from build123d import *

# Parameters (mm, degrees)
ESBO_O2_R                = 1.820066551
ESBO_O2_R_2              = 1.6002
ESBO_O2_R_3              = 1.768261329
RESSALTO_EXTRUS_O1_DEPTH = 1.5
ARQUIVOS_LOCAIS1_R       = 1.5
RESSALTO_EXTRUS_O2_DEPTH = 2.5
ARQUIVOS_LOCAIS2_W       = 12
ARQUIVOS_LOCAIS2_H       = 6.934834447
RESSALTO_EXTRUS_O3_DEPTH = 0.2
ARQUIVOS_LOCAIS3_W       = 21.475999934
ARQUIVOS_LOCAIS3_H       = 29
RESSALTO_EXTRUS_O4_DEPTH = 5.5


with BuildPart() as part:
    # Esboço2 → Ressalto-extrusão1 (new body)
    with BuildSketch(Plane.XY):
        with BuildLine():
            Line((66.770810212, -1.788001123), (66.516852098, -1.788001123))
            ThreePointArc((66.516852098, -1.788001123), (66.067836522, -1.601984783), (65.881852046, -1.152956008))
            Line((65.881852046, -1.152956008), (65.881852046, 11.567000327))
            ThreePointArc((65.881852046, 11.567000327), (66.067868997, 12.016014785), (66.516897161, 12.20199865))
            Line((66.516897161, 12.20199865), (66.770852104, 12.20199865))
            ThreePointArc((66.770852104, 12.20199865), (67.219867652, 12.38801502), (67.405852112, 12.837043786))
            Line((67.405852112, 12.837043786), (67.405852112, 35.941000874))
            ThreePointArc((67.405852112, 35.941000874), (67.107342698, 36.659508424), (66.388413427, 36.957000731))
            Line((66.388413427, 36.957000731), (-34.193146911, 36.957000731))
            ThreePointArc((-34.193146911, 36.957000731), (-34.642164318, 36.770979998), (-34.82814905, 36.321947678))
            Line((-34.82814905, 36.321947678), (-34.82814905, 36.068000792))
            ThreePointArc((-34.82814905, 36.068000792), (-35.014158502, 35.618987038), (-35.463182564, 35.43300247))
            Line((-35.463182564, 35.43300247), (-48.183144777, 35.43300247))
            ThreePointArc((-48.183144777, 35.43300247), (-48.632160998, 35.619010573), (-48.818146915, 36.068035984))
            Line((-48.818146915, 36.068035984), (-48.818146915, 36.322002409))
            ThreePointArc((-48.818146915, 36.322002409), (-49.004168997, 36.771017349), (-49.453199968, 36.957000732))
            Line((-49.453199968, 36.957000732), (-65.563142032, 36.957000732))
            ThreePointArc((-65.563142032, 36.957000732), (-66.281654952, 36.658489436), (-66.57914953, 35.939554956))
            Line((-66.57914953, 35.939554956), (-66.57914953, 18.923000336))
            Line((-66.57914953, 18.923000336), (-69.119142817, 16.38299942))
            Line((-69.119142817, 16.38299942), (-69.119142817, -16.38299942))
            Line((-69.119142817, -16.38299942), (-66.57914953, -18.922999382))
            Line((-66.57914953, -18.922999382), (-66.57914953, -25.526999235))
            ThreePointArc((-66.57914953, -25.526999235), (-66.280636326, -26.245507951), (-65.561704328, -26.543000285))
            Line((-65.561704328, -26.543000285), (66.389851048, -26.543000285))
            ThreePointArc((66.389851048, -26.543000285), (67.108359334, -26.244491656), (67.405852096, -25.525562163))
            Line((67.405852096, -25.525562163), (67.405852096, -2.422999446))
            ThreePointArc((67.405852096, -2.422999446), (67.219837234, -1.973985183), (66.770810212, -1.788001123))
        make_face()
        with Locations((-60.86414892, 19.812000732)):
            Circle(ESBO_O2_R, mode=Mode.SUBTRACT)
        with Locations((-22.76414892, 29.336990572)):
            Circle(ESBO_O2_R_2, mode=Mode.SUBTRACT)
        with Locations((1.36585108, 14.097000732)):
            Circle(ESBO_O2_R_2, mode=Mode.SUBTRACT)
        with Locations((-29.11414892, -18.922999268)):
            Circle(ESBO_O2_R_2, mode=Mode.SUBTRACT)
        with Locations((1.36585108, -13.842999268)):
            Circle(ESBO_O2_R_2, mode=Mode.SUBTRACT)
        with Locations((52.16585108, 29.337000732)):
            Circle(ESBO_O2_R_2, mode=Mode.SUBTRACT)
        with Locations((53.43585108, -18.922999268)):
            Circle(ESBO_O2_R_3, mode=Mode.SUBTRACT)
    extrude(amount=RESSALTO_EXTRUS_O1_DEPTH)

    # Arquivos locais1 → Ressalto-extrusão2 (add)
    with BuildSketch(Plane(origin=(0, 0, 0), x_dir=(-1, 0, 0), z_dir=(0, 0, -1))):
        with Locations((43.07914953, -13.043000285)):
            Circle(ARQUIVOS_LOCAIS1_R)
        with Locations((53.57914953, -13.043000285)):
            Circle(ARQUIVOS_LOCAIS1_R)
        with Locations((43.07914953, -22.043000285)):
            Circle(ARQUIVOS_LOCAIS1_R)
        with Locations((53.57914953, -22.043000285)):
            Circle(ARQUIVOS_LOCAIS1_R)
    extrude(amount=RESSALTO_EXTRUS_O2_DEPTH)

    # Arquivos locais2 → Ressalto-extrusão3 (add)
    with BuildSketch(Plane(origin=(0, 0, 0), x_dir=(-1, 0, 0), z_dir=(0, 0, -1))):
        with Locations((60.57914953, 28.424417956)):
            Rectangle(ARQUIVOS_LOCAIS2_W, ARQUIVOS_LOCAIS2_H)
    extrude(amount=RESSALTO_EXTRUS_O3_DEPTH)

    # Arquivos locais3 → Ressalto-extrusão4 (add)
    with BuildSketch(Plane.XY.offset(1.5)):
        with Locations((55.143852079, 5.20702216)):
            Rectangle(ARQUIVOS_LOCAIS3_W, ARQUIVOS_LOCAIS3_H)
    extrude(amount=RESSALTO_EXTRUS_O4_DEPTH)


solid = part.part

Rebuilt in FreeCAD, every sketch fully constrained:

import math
import FreeCAD as App
import Part
import Sketcher

V = App.Vector

doc = App.newDocument("Part")
body = doc.addObject("PartDesign::Body", "Body")

sketch1 = doc.addObject("Sketcher::SketchObject", "Sketch")
body.addObject(sketch1)
sketch1.AttachmentSupport = (doc.XY_Plane, [""])
sketch1.MapMode = "FlatFace"
sketch1.addGeometry([
    Part.LineSegment(V(66.77, -1.79, 0), V(66.52, -1.79, 0)),
    Part.ArcOfCircle(Part.Circle(V(66.52, -1.15, 0), V(0, 0, 1), 0.64), math.radians(-180), math.radians(-90)),
    Part.LineSegment(V(65.88, -1.15, 0), V(65.88, 11.57, 0)),
    Part.ArcOfCircle(Part.Circle(V(66.52, 11.57, 0), V(0, 0, 1), 0.64), math.radians(90), math.radians(180)),
    Part.LineSegment(V(66.52, 12.2, 0), V(66.77, 12.2, 0)),
    Part.ArcOfCircle(Part.Circle(V(66.77, 12.84, 0), V(0, 0, 1), 0.64), math.radians(-90), math.radians(0)),
    Part.LineSegment(V(67.41, 12.84, 0), V(67.41, 35.94, 0)),
    Part.ArcOfCircle(Part.Circle(V(66.39, 35.94, 0), V(0, 0, 1), 1.02), math.radians(0), math.radians(90)),
    Part.LineSegment(V(66.39, 36.96, 0), V(-34.19, 36.96, 0)),
    Part.ArcOfCircle(Part.Circle(V(-34.19, 36.32, 0), V(0, 0, 1), 0.64), math.radians(90), math.radians(180)),
    Part.LineSegment(V(-34.83, 36.32, 0), V(-34.83, 36.07, 0)),
    Part.ArcOfCircle(Part.Circle(V(-35.46, 36.07, 0), V(0, 0, 1), 0.64), math.radians(-90), math.radians(0)),
    Part.LineSegment(V(-35.46, 35.43, 0), V(-48.18, 35.43, 0)),
    Part.ArcOfCircle(Part.Circle(V(-48.18, 36.07, 0), V(0, 0, 1), 0.64), math.radians(180), math.radians(270)),
    Part.LineSegment(V(-48.82, 36.07, 0), V(-48.82, 36.32, 0)),
    Part.ArcOfCircle(Part.Circle(V(-49.45, 36.32, 0), V(0, 0, 1), 0.64), math.radians(0), math.radians(90)),
    Part.LineSegment(V(-49.45, 36.96, 0), V(-65.56, 36.96, 0)),
    Part.ArcOfCircle(Part.Circle(V(-65.56, 35.94, 0), V(0, 0, 1), 1.02), math.radians(90), math.radians(180)),
    Part.LineSegment(V(-66.58, 35.94, 0), V(-66.58, 18.92, 0)),
    Part.LineSegment(V(-66.58, 18.92, 0), V(-69.12, 16.38, 0)),
    Part.LineSegment(V(-69.12, 16.38, 0), V(-69.12, -16.38, 0)),
    Part.LineSegment(V(-69.12, -16.38, 0), V(-66.58, -18.92, 0)),
    Part.LineSegment(V(-66.58, -18.92, 0), V(-66.58, -25.53, 0)),
    Part.ArcOfCircle(Part.Circle(V(-65.56, -25.53, 0), V(0, 0, 1), 1.02), math.radians(-180), math.radians(-90)),
    Part.LineSegment(V(-65.56, -26.54, 0), V(66.39, -26.54, 0)),
    Part.ArcOfCircle(Part.Circle(V(66.39, -25.53, 0), V(0, 0, 1), 1.02), math.radians(-90), math.radians(0)),
    Part.LineSegment(V(67.41, -25.53, 0), V(67.41, -2.42, 0)),
    Part.ArcOfCircle(Part.Circle(V(66.77, -2.42, 0), V(0, 0, 1), 0.64), math.radians(0), math.radians(90)),
    Part.Circle(V(-29.11, -18.92, 0), V(0, 0, 1), 1.6),
    Part.Circle(V(1.37, -13.84, 0), V(0, 0, 1), 1.6),
    Part.Circle(V(53.44, -18.92, 0), V(0, 0, 1), 1.77),
    Part.Circle(V(-60.86, 19.81, 0), V(0, 0, 1), 1.82),
    Part.Circle(V(-22.76, 29.34, 0), V(0, 0, 1), 1.6),
    Part.Circle(V(1.37, 14.1, 0), V(0, 0, 1), 1.6),
    Part.Circle(V(52.17, 29.34, 0), V(0, 0, 1), 1.6),
], False)
sketch1.addConstraint([
    Sketcher.Constraint("Coincident", 0, 2, 1, 2),
    Sketcher.Constraint("Tangent", 1, 1, 2, 1),
    Sketcher.Constraint("Coincident", 2, 2, 3, 2),
    Sketcher.Constraint("Tangent", 3, 1, 4, 1),
    Sketcher.Constraint("Coincident", 4, 2, 5, 1),
    Sketcher.Constraint("Tangent", 5, 2, 6, 1),
    Sketcher.Constraint("Coincident", 6, 2, 7, 1),
    Sketcher.Constraint("Tangent", 7, 2, 8, 1),
    Sketcher.Constraint("Coincident", 8, 2, 9, 1),
    Sketcher.Constraint("Tangent", 9, 2, 10, 1),
    Sketcher.Constraint("Coincident", 10, 2, 11, 2),
    Sketcher.Constraint("Tangent", 11, 1, 12, 1),
    Sketcher.Constraint("Coincident", 12, 2, 13, 2),
    Sketcher.Constraint("Tangent", 13, 1, 14, 1),
    Sketcher.Constraint("Coincident", 14, 2, 15, 1),
    Sketcher.Constraint("Tangent", 15, 2, 16, 1),
    Sketcher.Constraint("Coincident", 16, 2, 17, 1),
    Sketcher.Constraint("Tangent", 17, 2, 18, 1),
    Sketcher.Constraint("Coincident", 18, 2, 19, 1),
    Sketcher.Constraint("Coincident", 19, 2, 20, 1),
    Sketcher.Constraint("Coincident", 20, 2, 21, 1),
    Sketcher.Constraint("Coincident", 21, 2, 22, 1),
    Sketcher.Constraint("Coincident", 22, 2, 23, 1),
    Sketcher.Constraint("Tangent", 23, 2, 24, 1),
    Sketcher.Constraint("Coincident", 24, 2, 25, 1),
    Sketcher.Constraint("Tangent", 25, 2, 26, 1),
    Sketcher.Constraint("Coincident", 26, 2, 27, 1),
    Sketcher.Constraint("Tangent", 27, 2, 0, 1),
    Sketcher.Constraint("Horizontal", 0),
    Sketcher.Constraint("Vertical", 2),
    Sketcher.Constraint("Horizontal", 4),
    Sketcher.Constraint("Vertical", 6),
    Sketcher.Constraint("Horizontal", 8),
    Sketcher.Constraint("Vertical", 10),
    Sketcher.Constraint("Horizontal", 12),
    Sketcher.Constraint("Vertical", 14),
    Sketcher.Constraint("Horizontal", 16),
    Sketcher.Constraint("Vertical", 18),
    Sketcher.Constraint("Vertical", 20),
    Sketcher.Constraint("Vertical", 22),
    Sketcher.Constraint("Horizontal", 24),
    Sketcher.Constraint("Vertical", 26),
    Sketcher.Constraint("Equal", 1, 3),
    Sketcher.Constraint("Equal", 3, 5),
    Sketcher.Constraint("Equal", 11, 13),
    Sketcher.Constraint("Equal", 9, 15),
    Sketcher.Constraint("Equal", 17, 23),
    Sketcher.Constraint("Equal", 7, 25),
    Sketcher.Constraint("Equal", 28, 29),
    Sketcher.Constraint("Equal", 29, 32),
    Sketcher.Constraint("Equal", 32, 33),
    Sketcher.Constraint("Equal", 33, 34),
    Sketcher.Constraint("Symmetric", 18, 2, 21, 2, -1),
    Sketcher.Constraint("Horizontal", 9, 3, 15, 3),
    Sketcher.Constraint("Horizontal", 28, 3, 30, 3),
    Sketcher.Constraint("Horizontal", 30, 3, 21, 2),
    Sketcher.Constraint("Vertical", 7, 3, 25, 3),
    Sketcher.Constraint("Vertical", 29, 3, 33, 3),
    Sketcher.Constraint("Equal", 19, 21),
    Sketcher.Constraint("Diameter", 28, 3.2004),
    Sketcher.Constraint("DistanceX", 31, 3, 32, 3, 38.1),
    Sketcher.Constraint("DistanceY", 20, 2, 20, 1, 32.765999),
    Sketcher.Constraint("DistanceY", 22, 2, 22, 1, 6.604),
    Sketcher.Constraint("Radius", 7, 1.01744),
    Sketcher.Constraint("Radius", 27, 0.635042),
    Sketcher.Constraint("DistanceY", 1, 3, 5, 3, 13.99),
    Sketcher.Constraint("DistanceX", 28, 3, 29, 3, 30.48),
    Sketcher.Constraint("DistanceY", 28, 3, 29, 3, 5.08),
    Sketcher.Constraint("DistanceY", 29, 3, 33, 3, 27.94),
    Sketcher.Constraint("DistanceX", 32, 3, 33, 3, 24.13),
    Sketcher.Constraint("DistanceX", 34, 3, 6, 2, 15.240001),
    Sketcher.Constraint("DistanceY", 34, 3, 7, 2, 7.62),
    Sketcher.Constraint("DistanceY", 19, 2, 18, 2, 2.540001),
    Sketcher.Constraint("DistanceY", 23, 2, 21, 2, 7.620001),
    Sketcher.Constraint("DistanceX", 30, 3, 25, 2, 13.970001),
    Sketcher.Constraint("Diameter", 30, 3.536523),
    Sketcher.Constraint("Diameter", 31, 3.640133),
    Sketcher.Constraint("DistanceY", -1, 1, 31, 3, 19.812001),
    Sketcher.Constraint("DistanceY", -1, 1, 34, 3, 29.337001),
    Sketcher.Constraint("DistanceY", 0, 2, -1, 1, 1.788001),
    Sketcher.Constraint("DistanceY", -1, 1, 2, 2, 11.567),
    Sketcher.Constraint("DistanceY", -1, 1, 6, 2, 35.941001),
    Sketcher.Constraint("DistanceY", -1, 1, 10, 2, 36.068001),
    Sketcher.Constraint("DistanceY", 26, 2, -1, 1, 2.422999),
    Sketcher.Constraint("Radius", 1, 0.635045),
    Sketcher.Constraint("Radius", 9, 0.635053),
    Sketcher.Constraint("Radius", 11, 0.635034),
    Sketcher.Constraint("Radius", 17, 1.017447),
    Sketcher.Constraint("DistanceX", 30, 3, 0, 2, 13.081001),
    Sketcher.Constraint("DistanceX", 1, 1, 0, 2, 0.635),
    Sketcher.Constraint("DistanceX", 2, 2, 4, 2, 0.889),
    Sketcher.Constraint("DistanceX", 9, 2, 32, 3, 12.064),
    Sketcher.Constraint("DistanceY", 11, 1, 10, 2, 0.634998),
    Sketcher.Constraint("DistanceY", 12, 2, 14, 2, 0.889),
    Sketcher.Constraint("DistanceX", 17, 2, 31, 3, 5.715001),
    Sketcher.Constraint("DistanceX", 19, 2, 16, 2, 3.556001),
    Sketcher.Constraint("DistanceX", 30, 3, 24, 2, 12.954),
    Sketcher.Constraint("Distance", 19, 3.592098),
    Sketcher.Constraint("DistanceX", 8, 2, 8, 1, 100.58156),
    Sketcher.Constraint("DistanceX", 15, 3, -1, 1, 49.4532),
    Sketcher.Constraint("DistanceX", 12, 2, 12, 1, 12.719962),
    Sketcher.Constraint("DistanceX", 16, 2, 16, 1, 16.109942),
    Sketcher.Constraint("DistanceX", 24, 1, 24, 2, 131.951555),
    Sketcher.Constraint("DistanceY", -1, 1, 32, 3, 29.336991),
])
pad1 = doc.addObject("PartDesign::Pad", "Pad")
body.addObject(pad1)
pad1.Profile = sketch1
pad1.Length = 1.5

sketch2 = doc.addObject("Sketcher::SketchObject", "Sketch001")
body.addObject(sketch2)
sketch2.AttachmentSupport = (doc.XY_Plane, [""])
sketch2.MapMode = "FlatFace"
sketch2.addGeometry([
    Part.Circle(V(-43.1, -13, 0), V(0, 0, 1), 1.5),
    Part.Circle(V(-53.6, -13, 0), V(0, 0, 1), 1.5),
    Part.Circle(V(-43.1, -22, 0), V(0, 0, 1), 1.5),
    Part.Circle(V(-53.6, -22, 0), V(0, 0, 1), 1.5),
], False)
sketch2.addConstraint([
    Sketcher.Constraint("Equal", 0, 1),
    Sketcher.Constraint("Equal", 1, 2),
    Sketcher.Constraint("Equal", 2, 3),
    Sketcher.Constraint("Horizontal", 0, 3, 1, 3),
    Sketcher.Constraint("Horizontal", 2, 3, 3, 3),
    Sketcher.Constraint("Vertical", 0, 3, 2, 3),
    Sketcher.Constraint("Vertical", 1, 3, 3, 3),
    Sketcher.Constraint("Diameter", 0, 3.0),
    Sketcher.Constraint("DistanceY", 2, 3, 0, 3, 9.0),
    Sketcher.Constraint("DistanceX", 1, 3, 0, 3, 10.5),
    Sketcher.Constraint("DistanceY", 0, 3, -1, 1, 13.043),
    Sketcher.Constraint("DistanceX", 0, 3, -1, 1, 43.07915),
])
pad2 = doc.addObject("PartDesign::Pad", "Pad001")
body.addObject(pad2)
pad2.Profile = sketch2
pad2.Length = 2.5
pad2.Reversed = True

sketch3 = doc.addObject("Sketcher::SketchObject", "Sketch002")
body.addObject(sketch3)
sketch3.AttachmentSupport = (doc.XY_Plane, [""])
sketch3.MapMode = "FlatFace"
sketch3.addGeometry([
    Part.LineSegment(V(-55, 32, 0), V(-55, 25, 0)),
    Part.LineSegment(V(-55, 25, 0), V(-67, 25, 0)),
    Part.LineSegment(V(-67, 25, 0), V(-67, 32, 0)),
    Part.LineSegment(V(-67, 32, 0), V(-55, 32, 0)),
], False)
sketch3.addConstraint([
    Sketcher.Constraint("Coincident", 0, 2, 1, 1),
    Sketcher.Constraint("Coincident", 1, 2, 2, 1),
    Sketcher.Constraint("Coincident", 2, 2, 3, 1),
    Sketcher.Constraint("Coincident", 3, 2, 0, 1),
    Sketcher.Constraint("Vertical", 0),
    Sketcher.Constraint("Horizontal", 1),
    Sketcher.Constraint("Vertical", 2),
    Sketcher.Constraint("Horizontal", 3),
    Sketcher.Constraint("DistanceX", 1, 2, 1, 1, 12.0),
    Sketcher.Constraint("DistanceY", -1, 1, 0, 2, 24.957001),
    Sketcher.Constraint("DistanceY", 0, 2, 0, 1, 6.934834),
    Sketcher.Constraint("DistanceX", 0, 2, -1, 1, 54.57915),
])
pad3 = doc.addObject("PartDesign::Pad", "Pad002")
body.addObject(pad3)
pad3.Profile = sketch3
pad3.Length = 0.2
pad3.Reversed = True

sketch4 = doc.addObject("Sketcher::SketchObject", "Sketch003")
body.addObject(sketch4)
sketch4.AttachmentSupport = (doc.XY_Plane, [""])
sketch4.MapMode = "FlatFace"
sketch4.AttachmentOffset = App.Placement(V(0, 0, 1.5), App.Rotation())
sketch4.addGeometry([
    Part.LineSegment(V(44, 20, 0), V(44, -9, 0)),
    Part.LineSegment(V(44, -9, 0), V(66, -9, 0)),
    Part.LineSegment(V(66, -9, 0), V(66, 20, 0)),
    Part.LineSegment(V(66, 20, 0), V(44, 20, 0)),
], False)
sketch4.addConstraint([
    Sketcher.Constraint("Coincident", 0, 2, 1, 1),
    Sketcher.Constraint("Coincident", 1, 2, 2, 1),
    Sketcher.Constraint("Coincident", 2, 2, 3, 1),
    Sketcher.Constraint("Coincident", 3, 2, 0, 1),
    Sketcher.Constraint("Vertical", 0),
    Sketcher.Constraint("Horizontal", 1),
    Sketcher.Constraint("Vertical", 2),
    Sketcher.Constraint("Horizontal", 3),
    Sketcher.Constraint("DistanceY", 0, 2, 0, 1, 29.0),
    Sketcher.Constraint("DistanceX", 1, 1, 1, 2, 21.476),
    Sketcher.Constraint("DistanceX", -1, 1, 0, 2, 44.405852),
    Sketcher.Constraint("DistanceY", 0, 2, -1, 1, 9.292978),
])
pad4 = doc.addObject("PartDesign::Pad", "Pad003")
body.addObject(pad4)
pad4.Profile = sketch4
pad4.Length = 5.5

doc.recompute()
